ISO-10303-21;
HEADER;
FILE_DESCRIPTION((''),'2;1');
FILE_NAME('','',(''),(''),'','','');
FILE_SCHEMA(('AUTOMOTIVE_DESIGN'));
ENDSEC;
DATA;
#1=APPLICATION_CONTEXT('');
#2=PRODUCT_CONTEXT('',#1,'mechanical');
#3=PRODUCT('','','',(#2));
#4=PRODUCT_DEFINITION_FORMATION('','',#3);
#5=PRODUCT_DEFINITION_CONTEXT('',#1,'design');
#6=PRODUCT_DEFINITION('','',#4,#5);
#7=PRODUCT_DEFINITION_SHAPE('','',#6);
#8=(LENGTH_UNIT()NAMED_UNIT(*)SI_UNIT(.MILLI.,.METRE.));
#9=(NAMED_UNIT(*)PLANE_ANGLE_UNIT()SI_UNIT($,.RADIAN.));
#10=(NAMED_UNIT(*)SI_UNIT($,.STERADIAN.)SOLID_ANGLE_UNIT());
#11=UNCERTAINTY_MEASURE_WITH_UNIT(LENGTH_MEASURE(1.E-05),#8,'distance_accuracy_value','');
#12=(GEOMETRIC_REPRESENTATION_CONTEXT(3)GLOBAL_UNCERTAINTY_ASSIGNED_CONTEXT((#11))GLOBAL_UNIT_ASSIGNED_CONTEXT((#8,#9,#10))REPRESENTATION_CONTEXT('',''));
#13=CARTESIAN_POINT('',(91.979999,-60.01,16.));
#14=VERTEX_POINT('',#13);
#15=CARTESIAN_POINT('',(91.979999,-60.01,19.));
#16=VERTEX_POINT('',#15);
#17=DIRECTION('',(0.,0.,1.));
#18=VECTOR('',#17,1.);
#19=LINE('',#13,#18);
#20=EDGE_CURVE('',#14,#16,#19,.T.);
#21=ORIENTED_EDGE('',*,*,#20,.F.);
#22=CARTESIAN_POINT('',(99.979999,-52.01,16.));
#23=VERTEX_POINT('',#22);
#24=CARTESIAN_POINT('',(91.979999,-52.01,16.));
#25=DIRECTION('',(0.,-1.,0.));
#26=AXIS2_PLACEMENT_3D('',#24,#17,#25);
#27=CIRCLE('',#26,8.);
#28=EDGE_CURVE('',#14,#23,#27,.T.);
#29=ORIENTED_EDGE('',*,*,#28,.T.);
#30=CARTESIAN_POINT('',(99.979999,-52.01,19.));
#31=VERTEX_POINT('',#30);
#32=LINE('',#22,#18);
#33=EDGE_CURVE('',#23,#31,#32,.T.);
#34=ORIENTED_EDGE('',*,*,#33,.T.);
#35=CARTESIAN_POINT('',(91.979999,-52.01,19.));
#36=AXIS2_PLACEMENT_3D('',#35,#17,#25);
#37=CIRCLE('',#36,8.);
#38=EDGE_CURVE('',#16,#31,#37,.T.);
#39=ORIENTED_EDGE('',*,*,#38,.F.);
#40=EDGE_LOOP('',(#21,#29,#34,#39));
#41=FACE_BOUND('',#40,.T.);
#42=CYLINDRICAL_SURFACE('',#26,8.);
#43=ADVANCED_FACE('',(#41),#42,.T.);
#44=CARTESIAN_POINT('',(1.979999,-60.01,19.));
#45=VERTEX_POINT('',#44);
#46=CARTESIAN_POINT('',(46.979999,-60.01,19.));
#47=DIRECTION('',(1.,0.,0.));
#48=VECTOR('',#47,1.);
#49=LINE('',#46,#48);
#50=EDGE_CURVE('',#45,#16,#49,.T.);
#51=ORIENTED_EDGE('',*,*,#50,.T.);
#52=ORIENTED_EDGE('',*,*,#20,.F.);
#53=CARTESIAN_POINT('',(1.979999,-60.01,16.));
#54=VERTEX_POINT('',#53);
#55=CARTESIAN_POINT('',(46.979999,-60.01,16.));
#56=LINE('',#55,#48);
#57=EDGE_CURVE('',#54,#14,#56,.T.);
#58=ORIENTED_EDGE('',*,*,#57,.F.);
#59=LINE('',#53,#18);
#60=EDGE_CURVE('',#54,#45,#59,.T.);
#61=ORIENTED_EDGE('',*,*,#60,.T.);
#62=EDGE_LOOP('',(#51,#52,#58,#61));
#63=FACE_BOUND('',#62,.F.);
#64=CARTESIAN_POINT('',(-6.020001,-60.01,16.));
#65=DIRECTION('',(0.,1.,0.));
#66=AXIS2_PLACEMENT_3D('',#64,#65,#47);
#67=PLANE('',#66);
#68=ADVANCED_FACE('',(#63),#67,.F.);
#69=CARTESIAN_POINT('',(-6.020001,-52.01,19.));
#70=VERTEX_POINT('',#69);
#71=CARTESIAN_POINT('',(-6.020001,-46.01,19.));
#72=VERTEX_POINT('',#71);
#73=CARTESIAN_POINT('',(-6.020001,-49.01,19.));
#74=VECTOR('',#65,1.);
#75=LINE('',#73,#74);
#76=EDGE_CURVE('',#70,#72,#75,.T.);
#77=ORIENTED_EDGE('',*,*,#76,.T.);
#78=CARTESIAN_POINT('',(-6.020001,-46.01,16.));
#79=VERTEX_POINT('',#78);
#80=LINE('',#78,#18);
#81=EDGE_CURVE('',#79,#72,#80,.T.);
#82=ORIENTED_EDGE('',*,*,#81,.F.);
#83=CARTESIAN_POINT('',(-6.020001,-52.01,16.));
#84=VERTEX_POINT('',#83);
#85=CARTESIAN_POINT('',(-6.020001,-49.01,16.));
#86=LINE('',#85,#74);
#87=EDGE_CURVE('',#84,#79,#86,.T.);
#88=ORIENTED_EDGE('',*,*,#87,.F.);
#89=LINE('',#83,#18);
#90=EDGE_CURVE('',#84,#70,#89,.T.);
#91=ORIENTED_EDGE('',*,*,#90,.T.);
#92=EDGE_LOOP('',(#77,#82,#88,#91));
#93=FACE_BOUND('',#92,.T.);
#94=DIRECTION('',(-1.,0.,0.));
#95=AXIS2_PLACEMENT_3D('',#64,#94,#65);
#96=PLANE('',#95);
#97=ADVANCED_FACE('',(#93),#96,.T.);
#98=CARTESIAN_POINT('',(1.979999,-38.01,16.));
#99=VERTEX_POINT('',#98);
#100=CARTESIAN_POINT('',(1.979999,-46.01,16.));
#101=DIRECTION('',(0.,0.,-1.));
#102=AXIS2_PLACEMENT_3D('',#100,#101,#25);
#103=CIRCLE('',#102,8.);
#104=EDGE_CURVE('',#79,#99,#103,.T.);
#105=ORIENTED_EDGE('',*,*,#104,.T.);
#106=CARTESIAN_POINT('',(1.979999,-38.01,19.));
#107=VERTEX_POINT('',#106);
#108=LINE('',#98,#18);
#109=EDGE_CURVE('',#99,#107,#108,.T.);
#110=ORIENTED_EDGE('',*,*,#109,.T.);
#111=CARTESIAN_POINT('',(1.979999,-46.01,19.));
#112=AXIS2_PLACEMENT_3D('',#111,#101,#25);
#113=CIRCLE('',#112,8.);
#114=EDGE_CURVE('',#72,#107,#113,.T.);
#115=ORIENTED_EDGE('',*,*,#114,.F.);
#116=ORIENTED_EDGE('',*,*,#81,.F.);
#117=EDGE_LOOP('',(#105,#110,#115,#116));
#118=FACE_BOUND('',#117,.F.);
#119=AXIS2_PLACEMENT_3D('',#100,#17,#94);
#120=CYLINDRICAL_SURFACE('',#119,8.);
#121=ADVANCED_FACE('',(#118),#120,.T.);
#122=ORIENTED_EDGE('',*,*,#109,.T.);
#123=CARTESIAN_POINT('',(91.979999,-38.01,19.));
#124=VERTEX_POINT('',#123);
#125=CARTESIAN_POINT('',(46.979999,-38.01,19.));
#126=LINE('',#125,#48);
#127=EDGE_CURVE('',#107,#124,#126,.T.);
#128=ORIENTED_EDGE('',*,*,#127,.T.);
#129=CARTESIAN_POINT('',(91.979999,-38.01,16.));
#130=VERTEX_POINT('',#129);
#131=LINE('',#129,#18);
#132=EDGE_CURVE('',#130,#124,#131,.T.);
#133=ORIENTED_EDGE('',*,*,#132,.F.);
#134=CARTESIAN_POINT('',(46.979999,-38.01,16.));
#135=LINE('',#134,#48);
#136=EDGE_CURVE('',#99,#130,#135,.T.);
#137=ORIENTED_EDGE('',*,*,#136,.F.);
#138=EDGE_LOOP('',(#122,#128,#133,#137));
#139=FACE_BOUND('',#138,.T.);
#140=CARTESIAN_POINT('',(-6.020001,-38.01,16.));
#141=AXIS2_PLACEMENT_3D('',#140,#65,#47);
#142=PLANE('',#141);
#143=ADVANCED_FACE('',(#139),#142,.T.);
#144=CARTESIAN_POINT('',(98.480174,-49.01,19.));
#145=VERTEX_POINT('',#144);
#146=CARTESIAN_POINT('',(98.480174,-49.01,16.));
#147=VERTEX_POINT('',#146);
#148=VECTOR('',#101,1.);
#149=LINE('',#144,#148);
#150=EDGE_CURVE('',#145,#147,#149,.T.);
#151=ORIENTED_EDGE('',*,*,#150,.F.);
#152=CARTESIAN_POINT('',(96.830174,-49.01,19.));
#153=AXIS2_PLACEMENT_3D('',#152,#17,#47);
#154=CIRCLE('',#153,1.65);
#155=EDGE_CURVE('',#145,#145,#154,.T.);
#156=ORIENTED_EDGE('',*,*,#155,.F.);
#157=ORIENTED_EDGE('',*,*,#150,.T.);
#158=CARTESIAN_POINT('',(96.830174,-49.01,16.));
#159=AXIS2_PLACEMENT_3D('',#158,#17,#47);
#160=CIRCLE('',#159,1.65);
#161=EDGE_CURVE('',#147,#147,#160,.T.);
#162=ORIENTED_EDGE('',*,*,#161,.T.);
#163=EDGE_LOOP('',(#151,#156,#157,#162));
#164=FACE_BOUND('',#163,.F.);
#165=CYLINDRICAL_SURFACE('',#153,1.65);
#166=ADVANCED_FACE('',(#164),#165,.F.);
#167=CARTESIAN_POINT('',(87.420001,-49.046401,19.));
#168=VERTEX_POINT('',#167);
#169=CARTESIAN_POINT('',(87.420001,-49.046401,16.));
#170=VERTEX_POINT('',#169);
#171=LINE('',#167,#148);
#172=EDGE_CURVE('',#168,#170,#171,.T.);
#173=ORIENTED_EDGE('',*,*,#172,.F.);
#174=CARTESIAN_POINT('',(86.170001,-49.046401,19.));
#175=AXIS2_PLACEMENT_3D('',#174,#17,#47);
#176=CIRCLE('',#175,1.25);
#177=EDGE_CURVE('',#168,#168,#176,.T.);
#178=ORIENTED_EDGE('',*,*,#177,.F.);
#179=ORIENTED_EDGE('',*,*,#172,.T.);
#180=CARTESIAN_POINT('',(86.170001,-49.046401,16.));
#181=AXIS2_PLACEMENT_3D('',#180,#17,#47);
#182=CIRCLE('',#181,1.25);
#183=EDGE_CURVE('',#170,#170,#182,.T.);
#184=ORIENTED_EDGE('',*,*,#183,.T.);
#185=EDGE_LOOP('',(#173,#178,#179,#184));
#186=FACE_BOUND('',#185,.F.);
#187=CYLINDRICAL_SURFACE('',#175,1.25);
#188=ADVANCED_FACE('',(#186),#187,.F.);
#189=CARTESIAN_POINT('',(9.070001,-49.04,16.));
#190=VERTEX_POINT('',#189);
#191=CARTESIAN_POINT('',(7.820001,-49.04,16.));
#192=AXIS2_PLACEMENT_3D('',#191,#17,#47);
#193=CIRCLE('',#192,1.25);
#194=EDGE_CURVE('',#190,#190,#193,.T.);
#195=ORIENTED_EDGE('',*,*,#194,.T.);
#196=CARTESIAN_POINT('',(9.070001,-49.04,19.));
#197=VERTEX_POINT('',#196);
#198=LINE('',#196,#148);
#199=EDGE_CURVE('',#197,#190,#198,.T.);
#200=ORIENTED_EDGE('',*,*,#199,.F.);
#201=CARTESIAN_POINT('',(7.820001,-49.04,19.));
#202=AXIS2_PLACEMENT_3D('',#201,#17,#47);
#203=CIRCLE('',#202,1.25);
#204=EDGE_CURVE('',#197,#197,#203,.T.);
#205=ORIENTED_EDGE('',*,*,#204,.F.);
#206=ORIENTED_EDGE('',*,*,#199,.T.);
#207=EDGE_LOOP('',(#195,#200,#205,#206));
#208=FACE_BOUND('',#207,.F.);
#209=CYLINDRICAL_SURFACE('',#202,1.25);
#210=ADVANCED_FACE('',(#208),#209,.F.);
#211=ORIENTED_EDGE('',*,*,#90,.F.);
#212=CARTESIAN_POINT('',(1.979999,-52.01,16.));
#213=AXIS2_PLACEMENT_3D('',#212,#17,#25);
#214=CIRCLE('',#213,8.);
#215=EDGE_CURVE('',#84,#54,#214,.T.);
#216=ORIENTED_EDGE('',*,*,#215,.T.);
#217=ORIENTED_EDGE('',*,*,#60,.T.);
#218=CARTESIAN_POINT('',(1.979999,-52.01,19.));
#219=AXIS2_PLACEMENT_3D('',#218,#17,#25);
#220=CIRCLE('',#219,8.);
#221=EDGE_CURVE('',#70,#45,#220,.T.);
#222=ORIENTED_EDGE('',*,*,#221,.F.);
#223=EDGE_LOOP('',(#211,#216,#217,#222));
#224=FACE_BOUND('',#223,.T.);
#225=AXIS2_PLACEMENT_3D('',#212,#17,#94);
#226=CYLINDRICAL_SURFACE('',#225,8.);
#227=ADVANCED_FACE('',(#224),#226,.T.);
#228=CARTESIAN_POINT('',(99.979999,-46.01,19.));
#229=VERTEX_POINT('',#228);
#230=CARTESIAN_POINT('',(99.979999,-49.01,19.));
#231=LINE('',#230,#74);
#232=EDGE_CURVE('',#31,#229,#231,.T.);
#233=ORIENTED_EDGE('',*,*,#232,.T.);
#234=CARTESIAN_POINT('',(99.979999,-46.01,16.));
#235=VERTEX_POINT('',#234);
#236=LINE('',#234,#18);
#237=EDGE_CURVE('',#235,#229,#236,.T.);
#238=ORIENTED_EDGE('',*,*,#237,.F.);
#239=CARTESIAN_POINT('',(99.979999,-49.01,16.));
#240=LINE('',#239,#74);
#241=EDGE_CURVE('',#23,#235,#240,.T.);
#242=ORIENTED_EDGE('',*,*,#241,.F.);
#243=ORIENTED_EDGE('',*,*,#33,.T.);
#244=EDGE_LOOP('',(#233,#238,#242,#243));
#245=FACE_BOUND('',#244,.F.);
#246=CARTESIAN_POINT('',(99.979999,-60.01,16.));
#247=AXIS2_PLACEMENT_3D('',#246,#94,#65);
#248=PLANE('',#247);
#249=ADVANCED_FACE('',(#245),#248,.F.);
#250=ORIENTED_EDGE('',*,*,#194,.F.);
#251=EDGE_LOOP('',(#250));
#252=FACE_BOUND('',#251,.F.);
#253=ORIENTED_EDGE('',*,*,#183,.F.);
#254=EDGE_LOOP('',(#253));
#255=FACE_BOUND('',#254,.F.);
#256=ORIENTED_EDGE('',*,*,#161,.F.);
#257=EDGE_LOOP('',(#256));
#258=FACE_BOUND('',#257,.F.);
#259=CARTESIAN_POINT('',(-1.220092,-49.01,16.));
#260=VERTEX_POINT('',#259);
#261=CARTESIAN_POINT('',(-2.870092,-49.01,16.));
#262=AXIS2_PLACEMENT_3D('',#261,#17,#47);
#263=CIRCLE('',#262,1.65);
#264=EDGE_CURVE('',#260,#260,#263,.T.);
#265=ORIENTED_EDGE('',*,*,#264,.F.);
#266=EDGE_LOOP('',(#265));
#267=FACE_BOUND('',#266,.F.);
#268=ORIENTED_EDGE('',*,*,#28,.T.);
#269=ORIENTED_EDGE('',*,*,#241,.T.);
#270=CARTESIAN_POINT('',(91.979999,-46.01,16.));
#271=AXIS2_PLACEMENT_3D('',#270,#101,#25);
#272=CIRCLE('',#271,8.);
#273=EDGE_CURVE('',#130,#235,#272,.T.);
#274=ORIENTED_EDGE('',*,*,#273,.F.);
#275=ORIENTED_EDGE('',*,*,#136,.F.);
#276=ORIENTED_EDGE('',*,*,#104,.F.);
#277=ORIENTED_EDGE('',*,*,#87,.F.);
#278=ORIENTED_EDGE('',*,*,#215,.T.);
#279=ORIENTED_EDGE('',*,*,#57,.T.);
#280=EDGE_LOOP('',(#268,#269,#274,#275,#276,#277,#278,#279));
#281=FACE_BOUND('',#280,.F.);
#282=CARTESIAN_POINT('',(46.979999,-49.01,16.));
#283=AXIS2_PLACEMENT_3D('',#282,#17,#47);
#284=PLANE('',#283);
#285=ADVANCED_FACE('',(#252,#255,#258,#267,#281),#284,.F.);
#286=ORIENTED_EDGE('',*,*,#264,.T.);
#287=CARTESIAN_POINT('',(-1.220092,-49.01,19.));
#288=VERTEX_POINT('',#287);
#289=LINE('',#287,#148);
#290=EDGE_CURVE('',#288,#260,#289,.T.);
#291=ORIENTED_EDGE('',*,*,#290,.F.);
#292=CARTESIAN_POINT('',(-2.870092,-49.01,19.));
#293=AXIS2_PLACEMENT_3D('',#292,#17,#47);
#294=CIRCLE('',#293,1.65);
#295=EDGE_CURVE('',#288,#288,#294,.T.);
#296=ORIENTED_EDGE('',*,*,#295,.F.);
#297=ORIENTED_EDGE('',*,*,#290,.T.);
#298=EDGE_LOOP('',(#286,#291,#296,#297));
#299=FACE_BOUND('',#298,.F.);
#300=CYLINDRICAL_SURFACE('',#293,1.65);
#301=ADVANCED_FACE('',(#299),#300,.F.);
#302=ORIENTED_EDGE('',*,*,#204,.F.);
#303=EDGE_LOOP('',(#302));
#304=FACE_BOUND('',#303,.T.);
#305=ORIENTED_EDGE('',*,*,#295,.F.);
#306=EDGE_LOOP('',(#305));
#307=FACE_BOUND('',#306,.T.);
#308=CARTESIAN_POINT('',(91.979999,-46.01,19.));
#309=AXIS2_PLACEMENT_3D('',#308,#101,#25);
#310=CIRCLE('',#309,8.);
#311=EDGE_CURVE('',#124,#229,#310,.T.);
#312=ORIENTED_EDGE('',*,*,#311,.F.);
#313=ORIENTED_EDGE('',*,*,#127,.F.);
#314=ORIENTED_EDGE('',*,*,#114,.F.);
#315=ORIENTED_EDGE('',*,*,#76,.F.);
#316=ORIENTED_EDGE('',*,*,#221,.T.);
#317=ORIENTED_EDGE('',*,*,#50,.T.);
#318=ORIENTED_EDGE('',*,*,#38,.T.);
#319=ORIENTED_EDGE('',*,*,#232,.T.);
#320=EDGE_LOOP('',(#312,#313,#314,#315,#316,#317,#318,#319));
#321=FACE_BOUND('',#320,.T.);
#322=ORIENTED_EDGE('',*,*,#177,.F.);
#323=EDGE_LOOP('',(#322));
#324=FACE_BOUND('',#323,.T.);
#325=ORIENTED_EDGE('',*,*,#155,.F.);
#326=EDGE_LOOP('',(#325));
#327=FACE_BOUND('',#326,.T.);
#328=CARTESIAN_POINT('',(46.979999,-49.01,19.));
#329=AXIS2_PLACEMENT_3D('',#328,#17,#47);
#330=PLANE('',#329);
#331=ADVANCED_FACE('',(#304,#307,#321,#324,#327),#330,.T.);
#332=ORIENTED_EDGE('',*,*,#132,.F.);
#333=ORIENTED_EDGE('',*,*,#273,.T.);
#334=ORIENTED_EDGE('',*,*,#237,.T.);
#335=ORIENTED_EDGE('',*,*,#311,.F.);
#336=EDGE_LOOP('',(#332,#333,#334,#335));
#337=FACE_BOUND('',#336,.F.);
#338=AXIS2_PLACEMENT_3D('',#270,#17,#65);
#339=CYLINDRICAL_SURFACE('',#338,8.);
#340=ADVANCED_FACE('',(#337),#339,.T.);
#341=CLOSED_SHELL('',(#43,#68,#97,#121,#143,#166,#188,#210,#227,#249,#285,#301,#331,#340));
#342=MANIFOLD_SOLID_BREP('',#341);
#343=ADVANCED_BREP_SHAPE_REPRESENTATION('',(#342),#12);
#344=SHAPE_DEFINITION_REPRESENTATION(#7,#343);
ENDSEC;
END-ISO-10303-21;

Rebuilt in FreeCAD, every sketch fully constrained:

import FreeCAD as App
import Part
import Sketcher
from FreeCAD import Vector


def edges_at(feature, points):
    """Names of the edges that pass closest to the given points."""
    edges = feature.Shape.Edges
    near = lambda p: min(range(len(edges)), key=lambda i: edges[i].distToShape(Part.Vertex(*p))[0])
    return sorted({f"Edge{near(p) + 1}" for p in points})

doc = App.newDocument("Part")
params = doc.addObject("Spreadsheet::Sheet", "Params")
for row, (alias, value) in enumerate([
    ("sketch1_width", "106 mm"),
    ("sketch1_height", "22 mm"),
    ("pad1_length", "3 mm"),
    ("sketch2_diameter", "2.5 mm"),
    ("pocket1_length", "3 mm"),
    ("fillet_radius", "8 mm"),
    ("sketch3_diameter", "3.3 mm"),
    ("pocket2_length", "3 mm"),
], start=1):
    params.set(f"A{row}", alias)
    params.set(f"B{row}", "=" + value)
    params.setAlias(f"B{row}", alias)

body = doc.addObject("PartDesign::Body", "Body")

sketch1 = body.newObject("Sketcher::SketchObject", "Sketch")
sketch1.AttachmentSupport = (doc.getObject("XY_Plane"), [""])
sketch1.MapMode = "FlatFace"
sketch1.addGeometry(Part.LineSegment(Vector(-52.390001, 21.86, 0), Vector(-52.390001, -0.14, 0)), False)
sketch1.addGeometry(Part.LineSegment(Vector(-52.390001, -0.14, 0), Vector(53.609999, -0.14, 0)), False)
sketch1.addGeometry(Part.LineSegment(Vector(53.609999, -0.14, 0), Vector(53.609999, 21.86, 0)), False)
sketch1.addGeometry(Part.LineSegment(Vector(53.609999, 21.86, 0), Vector(-52.390001, 21.86, 0)), False)
sketch1.addConstraint(Sketcher.Constraint("Coincident", 0, 2, 1, 1))
sketch1.addConstraint(Sketcher.Constraint("Coincident", 1, 2, 2, 1))
sketch1.addConstraint(Sketcher.Constraint("Coincident", 2, 2, 3, 1))
sketch1.addConstraint(Sketcher.Constraint("Coincident", 3, 2, 0, 1))
sketch1.addConstraint(Sketcher.Constraint("Vertical", 0))
sketch1.addConstraint(Sketcher.Constraint("Horizontal", 1))
sketch1.addConstraint(Sketcher.Constraint("Vertical", 2))
sketch1.addConstraint(Sketcher.Constraint("Horizontal", 3))
sketch1.addConstraint(Sketcher.Constraint("DistanceX", 1, 1, 1, 2, 106.0))
sketch1.addConstraint(Sketcher.Constraint("DistanceY", 0, 2, 0, 1, 22.0))
sketch1.addConstraint(Sketcher.Constraint("DistanceX", 0, 2, -1, 1, 52.390001))
sketch1.addConstraint(Sketcher.Constraint("DistanceY", 0, 2, -1, 1, 0.14))
sketch1.setExpression("Constraints[8]", "Params.sketch1_width")
sketch1.setExpression("Constraints[9]", "Params.sketch1_height")
pad1 = body.newObject("PartDesign::Pad", "Pad")
pad1.Profile = sketch1
pad1.setExpression("Length", "Params.pad1_length")

sketch2 = body.newObject("Sketcher::SketchObject", "Sketch001")
sketch2.AttachmentSupport = (doc.getObject("XY_Plane"), [""])
sketch2.MapMode = "FlatFace"
sketch2.AttachmentOffset = App.Placement(Vector(0, 0, 3), App.Rotation())
sketch2.addGeometry(Part.Circle(Vector(-38.549999, 10.83, 0), Vector(0, 0, 1), 1.25), False)
sketch2.addGeometry(Part.Circle(Vector(39.800001, 10.823599, 0), Vector(0, 0, 1), 1.25), False)
sketch2.addConstraint(Sketcher.Constraint("Equal", 0, 1))
sketch2.addConstraint(Sketcher.Constraint("Diameter", 0, 2.5))
sketch2.addConstraint(Sketcher.Constraint("DistanceX", -1, 1, 1, 3, 39.800001))
sketch2.addConstraint(Sketcher.Constraint("DistanceX", 0, 3, -1, 1, 38.549999))
sketch2.addConstraint(Sketcher.Constraint("DistanceY", -1, 1, 0, 3, 10.83))
sketch2.addConstraint(Sketcher.Constraint("DistanceY", -1, 1, 1, 3, 10.823599))
sketch2.setExpression("Constraints[1]", "Params.sketch2_diameter")
pocket1 = body.newObject("PartDesign::Pocket", "Pocket")
pocket1.Profile = sketch2
pocket1.setExpression("Length", "Params.pocket1_length")
doc.recompute()

fillet = body.newObject("PartDesign::Fillet", "Fillet")
fillet.Base = (pocket1, edges_at(pocket1, [
    (-52.39, 21.86, 1.5),
    (-52.39, -0.14, 1.5),
    (53.61, 21.86, 1.5),
    (53.61, -0.14, 1.5),
]))
fillet.setExpression("Radius", "Params.fillet_radius")

sketch3 = body.newObject("Sketcher::SketchObject", "Sketch002")
sketch3.AttachmentSupport = (doc.getObject("XY_Plane"), [""])
sketch3.MapMode = "FlatFace"
sketch3.AttachmentOffset = App.Placement(Vector(0, 0, 3), App.Rotation())
sketch3.addGeometry(Part.Circle(Vector(-49.240092, 10.86, 0), Vector(0, 0, 1), 1.65), False)
sketch3.addGeometry(Part.Circle(Vector(50.460174, 10.86, 0), Vector(0, 0, 1), 1.65), False)
sketch3.addConstraint(Sketcher.Constraint("Equal", 0, 1))
sketch3.addConstraint(Sketcher.Constraint("Horizontal", 0, 3, 1, 3))
sketch3.addConstraint(Sketcher.Constraint("Diameter", 0, 3.3))
sketch3.addConstraint(Sketcher.Constraint("DistanceY", -1, 1, 0, 3, 10.86))
sketch3.addConstraint(Sketcher.Constraint("DistanceX", 0, 3, -1, 1, 49.240092))
sketch3.addConstraint(Sketcher.Constraint("DistanceX", -1, 1, 1, 3, 50.460174))
sketch3.setExpression("Constraints[2]", "Params.sketch3_diameter")
pocket2 = body.newObject("PartDesign::Pocket", "Pocket001")
pocket2.Profile = sketch3
pocket2.setExpression("Length", "Params.pocket2_length")
body2 = doc.addObject("PartDesign::Body", "Body001")
doc.recompute()

body.Placement = App.Placement(Vector(46.37, -59.87, 16), App.Rotation(Vector(0, 0, 1), 0))
boolean = body2.newObject("PartDesign::Boolean", "Boolean")
boolean.Type = "Fuse"
boolean.addObjects([body])

doc.recompute()
